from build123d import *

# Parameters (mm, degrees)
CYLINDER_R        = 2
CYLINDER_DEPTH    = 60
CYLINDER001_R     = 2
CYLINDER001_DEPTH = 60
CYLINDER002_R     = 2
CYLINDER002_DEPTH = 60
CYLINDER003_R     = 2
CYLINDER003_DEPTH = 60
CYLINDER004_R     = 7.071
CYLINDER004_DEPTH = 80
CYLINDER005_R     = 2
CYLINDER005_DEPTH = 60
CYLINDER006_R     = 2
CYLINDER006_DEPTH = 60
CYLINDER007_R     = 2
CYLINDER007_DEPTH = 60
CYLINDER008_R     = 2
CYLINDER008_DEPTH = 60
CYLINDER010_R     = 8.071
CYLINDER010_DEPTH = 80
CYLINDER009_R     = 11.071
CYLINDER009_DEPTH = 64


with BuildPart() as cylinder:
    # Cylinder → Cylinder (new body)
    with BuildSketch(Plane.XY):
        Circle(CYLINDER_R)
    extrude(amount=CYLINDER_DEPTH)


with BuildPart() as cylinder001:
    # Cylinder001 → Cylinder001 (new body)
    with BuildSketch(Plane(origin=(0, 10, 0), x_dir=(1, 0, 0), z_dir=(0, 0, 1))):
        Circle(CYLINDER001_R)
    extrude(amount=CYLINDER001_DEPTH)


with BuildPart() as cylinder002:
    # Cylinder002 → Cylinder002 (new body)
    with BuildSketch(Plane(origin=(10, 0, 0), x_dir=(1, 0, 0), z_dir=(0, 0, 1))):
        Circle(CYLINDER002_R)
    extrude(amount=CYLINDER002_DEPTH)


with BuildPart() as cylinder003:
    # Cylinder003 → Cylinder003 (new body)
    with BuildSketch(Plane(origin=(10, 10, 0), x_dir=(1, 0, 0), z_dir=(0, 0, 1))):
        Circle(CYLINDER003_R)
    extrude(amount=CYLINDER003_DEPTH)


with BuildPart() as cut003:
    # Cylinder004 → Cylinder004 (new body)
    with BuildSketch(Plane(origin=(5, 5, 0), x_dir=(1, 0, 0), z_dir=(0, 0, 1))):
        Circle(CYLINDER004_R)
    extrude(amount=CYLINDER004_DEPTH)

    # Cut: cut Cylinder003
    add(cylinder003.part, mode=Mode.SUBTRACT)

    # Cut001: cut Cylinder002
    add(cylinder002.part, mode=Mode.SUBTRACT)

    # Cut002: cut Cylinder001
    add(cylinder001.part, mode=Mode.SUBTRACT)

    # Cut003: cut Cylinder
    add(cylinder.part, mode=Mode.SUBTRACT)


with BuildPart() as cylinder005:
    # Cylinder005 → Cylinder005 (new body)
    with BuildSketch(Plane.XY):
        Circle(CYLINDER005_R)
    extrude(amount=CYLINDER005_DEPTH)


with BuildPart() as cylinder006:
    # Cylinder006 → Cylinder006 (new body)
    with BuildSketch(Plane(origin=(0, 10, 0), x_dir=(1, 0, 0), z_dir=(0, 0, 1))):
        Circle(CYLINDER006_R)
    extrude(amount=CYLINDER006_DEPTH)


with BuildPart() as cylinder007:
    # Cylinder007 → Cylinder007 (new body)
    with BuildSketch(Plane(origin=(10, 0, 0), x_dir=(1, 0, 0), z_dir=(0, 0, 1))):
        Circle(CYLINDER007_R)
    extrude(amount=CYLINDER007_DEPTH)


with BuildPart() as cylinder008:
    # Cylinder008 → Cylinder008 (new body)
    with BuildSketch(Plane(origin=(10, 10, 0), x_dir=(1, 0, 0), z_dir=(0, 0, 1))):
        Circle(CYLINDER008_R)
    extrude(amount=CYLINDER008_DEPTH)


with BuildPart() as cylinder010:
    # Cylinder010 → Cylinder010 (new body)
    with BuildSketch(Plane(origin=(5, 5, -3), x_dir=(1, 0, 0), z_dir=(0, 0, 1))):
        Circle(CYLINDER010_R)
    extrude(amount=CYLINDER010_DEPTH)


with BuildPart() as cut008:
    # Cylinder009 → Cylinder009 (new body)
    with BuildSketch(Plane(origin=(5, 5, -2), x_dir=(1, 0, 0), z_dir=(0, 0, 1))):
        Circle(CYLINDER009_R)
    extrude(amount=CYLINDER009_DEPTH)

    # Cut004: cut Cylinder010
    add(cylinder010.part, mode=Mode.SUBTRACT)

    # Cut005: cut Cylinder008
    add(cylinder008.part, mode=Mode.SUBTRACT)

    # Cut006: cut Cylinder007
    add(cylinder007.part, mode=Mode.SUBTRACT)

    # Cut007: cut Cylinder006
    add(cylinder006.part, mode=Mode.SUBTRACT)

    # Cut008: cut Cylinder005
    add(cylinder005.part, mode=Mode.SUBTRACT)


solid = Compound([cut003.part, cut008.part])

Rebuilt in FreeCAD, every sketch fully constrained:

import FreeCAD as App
import Part
import Sketcher

V = App.Vector

doc = App.newDocument("Part")
body = doc.addObject("PartDesign::Body", "Body")

# Sketch on XY plane
sketch1 = body.newObject("Sketcher::SketchObject", "Sketch")
sketch1.AttachmentSupport = (doc.getObject("XY_Plane"), [""])
sketch1.MapMode = "FlatFace"
sketch1.addGeometry(Part.Circle(V(0, 0, 0), V(0, 0, 1), 2), False)
sketch1.addConstraint([
    Sketcher.Constraint("Coincident", 0, 3, -1, 1),
    Sketcher.Constraint("Diameter", 0, 4.0),
])
pad1 = body.newObject("PartDesign::Pad", "Pad")
pad1.Profile = sketch1
pad1.Length = 60
body2 = doc.addObject("PartDesign::Body", "Body001")

# Sketch on XY plane
sketch2 = body2.newObject("Sketcher::SketchObject", "Sketch001")
sketch2.AttachmentSupport = (doc.getObject("XY_Plane001"), [""])
sketch2.MapMode = "FlatFace"
sketch2.addGeometry(Part.Circle(V(0, 10, 0), V(0, 0, 1), 2), False)
sketch2.addConstraint([
    Sketcher.Constraint("PointOnObject", 0, 3, -2),
    Sketcher.Constraint("Diameter", 0, 4.0),
    Sketcher.Constraint("DistanceY", -1, 1, 0, 3, 10.0),
])
pad2 = body2.newObject("PartDesign::Pad", "Pad001")
pad2.Profile = sketch2
pad2.Length = 60
body3 = doc.addObject("PartDesign::Body", "Body002")

# Sketch on XY plane
sketch3 = body3.newObject("Sketcher::SketchObject", "Sketch002")
sketch3.AttachmentSupport = (doc.getObject("XY_Plane002"), [""])
sketch3.MapMode = "FlatFace"
sketch3.addGeometry(Part.Circle(V(10, 0, 0), V(0, 0, 1), 2), False)
sketch3.addConstraint([
    Sketcher.Constraint("PointOnObject", 0, 3, -1),
    Sketcher.Constraint("Diameter", 0, 4.0),
    Sketcher.Constraint("DistanceX", -1, 1, 0, 3, 10.0),
])
pad3 = body3.newObject("PartDesign::Pad", "Pad002")
pad3.Profile = sketch3
pad3.Length = 60
body4 = doc.addObject("PartDesign::Body", "Body003")

# Sketch on XY plane
sketch4 = body4.newObject("Sketcher::SketchObject", "Sketch003")
sketch4.AttachmentSupport = (doc.getObject("XY_Plane003"), [""])
sketch4.MapMode = "FlatFace"
sketch4.addGeometry(Part.Circle(V(10, 10, 0), V(0, 0, 1), 2), False)
sketch4.addConstraint([
    Sketcher.Constraint("Diameter", 0, 4.0),
    Sketcher.Constraint("DistanceX", -1, 1, 0, 3, 10.0),
    Sketcher.Constraint("DistanceY", -1, 1, 0, 3, 10.0),
])
pad4 = body4.newObject("PartDesign::Pad", "Pad003")
pad4.Profile = sketch4
pad4.Length = 60
body5 = doc.addObject("PartDesign::Body", "Body004")

# Sketch on XY plane
sketch5 = body5.newObject("Sketcher::SketchObject", "Sketch004")
sketch5.AttachmentSupport = (doc.getObject("XY_Plane004"), [""])
sketch5.MapMode = "FlatFace"
sketch5.addGeometry(Part.Circle(V(5, 5, 0), V(0, 0, 1), 7.071), False)
sketch5.addConstraint([
    Sketcher.Constraint("Diameter", 0, 14.142),
    Sketcher.Constraint("DistanceX", -1, 1, 0, 3, 5.0),
    Sketcher.Constraint("DistanceY", -1, 1, 0, 3, 5.0),
])
pad5 = body5.newObject("PartDesign::Pad", "Pad004")
pad5.Profile = sketch5
pad5.Length = 80
doc.recompute()

boolean = body5.newObject("PartDesign::Boolean", "Boolean")
boolean.Type = "Cut"
boolean.addObjects([body4])
doc.recompute()

boolean2 = body5.newObject("PartDesign::Boolean", "Boolean001")
boolean2.Type = "Cut"
boolean2.addObjects([body3])
doc.recompute()

boolean3 = body5.newObject("PartDesign::Boolean", "Boolean002")
boolean3.Type = "Cut"
boolean3.addObjects([body2])
doc.recompute()

boolean4 = body5.newObject("PartDesign::Boolean", "Boolean003")
boolean4.Type = "Cut"
boolean4.addObjects([body])
body6 = doc.addObject("PartDesign::Body", "Body005")

# Sketch on XY plane
sketch6 = body6.newObject("Sketcher::SketchObject", "Sketch005")
sketch6.AttachmentSupport = (doc.getObject("XY_Plane005"), [""])
sketch6.MapMode = "FlatFace"
sketch6.addGeometry(Part.Circle(V(0, 0, 0), V(0, 0, 1), 2), False)
sketch6.addConstraint([
    Sketcher.Constraint("Coincident", 0, 3, -1, 1),
    Sketcher.Constraint("Diameter", 0, 4.0),
])
pad6 = body6.newObject("PartDesign::Pad", "Pad005")
pad6.Profile = sketch6
pad6.Length = 60
body7 = doc.addObject("PartDesign::Body", "Body006")

# Sketch on XY plane
sketch7 = body7.newObject("Sketcher::SketchObject", "Sketch006")
sketch7.AttachmentSupport = (doc.getObject("XY_Plane006"), [""])
sketch7.MapMode = "FlatFace"
sketch7.addGeometry(Part.Circle(V(0, 10, 0), V(0, 0, 1), 2), False)
sketch7.addConstraint([
    Sketcher.Constraint("PointOnObject", 0, 3, -2),
    Sketcher.Constraint("Diameter", 0, 4.0),
    Sketcher.Constraint("DistanceY", -1, 1, 0, 3, 10.0),
])
pad7 = body7.newObject("PartDesign::Pad", "Pad006")
pad7.Profile = sketch7
pad7.Length = 60
body8 = doc.addObject("PartDesign::Body", "Body007")

# Sketch on XY plane
sketch8 = body8.newObject("Sketcher::SketchObject", "Sketch007")
sketch8.AttachmentSupport = (doc.getObject("XY_Plane007"), [""])
sketch8.MapMode = "FlatFace"
sketch8.addGeometry(Part.Circle(V(10, 0, 0), V(0, 0, 1), 2), False)
sketch8.addConstraint([
    Sketcher.Constraint("PointOnObject", 0, 3, -1),
    Sketcher.Constraint("Diameter", 0, 4.0),
    Sketcher.Constraint("DistanceX", -1, 1, 0, 3, 10.0),
])
pad8 = body8.newObject("PartDesign::Pad", "Pad007")
pad8.Profile = sketch8
pad8.Length = 60
body9 = doc.addObject("PartDesign::Body", "Body008")

# Sketch on XY plane
sketch9 = body9.newObject("Sketcher::SketchObject", "Sketch008")
sketch9.AttachmentSupport = (doc.getObject("XY_Plane008"), [""])
sketch9.MapMode = "FlatFace"
sketch9.addGeometry(Part.Circle(V(10, 10, 0), V(0, 0, 1), 2), False)
sketch9.addConstraint([
    Sketcher.Constraint("Diameter", 0, 4.0),
    Sketcher.Constraint("DistanceX", -1, 1, 0, 3, 10.0),
    Sketcher.Constraint("DistanceY", -1, 1, 0, 3, 10.0),
])
pad9 = body9.newObject("PartDesign::Pad", "Pad008")
pad9.Profile = sketch9
pad9.Length = 60
body10 = doc.addObject("PartDesign::Body", "Body009")

# Sketch on XY plane
sketch10 = body10.newObject("Sketcher::SketchObject", "Sketch009")
sketch10.AttachmentSupport = (doc.getObject("XY_Plane009"), [""])
sketch10.MapMode = "FlatFace"
sketch10.AttachmentOffset = App.Placement(V(0, 0, -3), App.Rotation())
sketch10.addGeometry(Part.Circle(V(5, 5, 0), V(0, 0, 1), 8.071), False)
sketch10.addConstraint([
    Sketcher.Constraint("Diameter", 0, 16.142),
    Sketcher.Constraint("DistanceX", -1, 1, 0, 3, 5.0),
    Sketcher.Constraint("DistanceY", -1, 1, 0, 3, 5.0),
])
pad10 = body10.newObject("PartDesign::Pad", "Pad009")
pad10.Profile = sketch10
pad10.Length = 80
body11 = doc.addObject("PartDesign::Body", "Body010")

# Sketch on XY plane
sketch11 = body11.newObject("Sketcher::SketchObject", "Sketch010")
sketch11.AttachmentSupport = (doc.getObject("XY_Plane010"), [""])
sketch11.MapMode = "FlatFace"
sketch11.AttachmentOffset = App.Placement(V(0, 0, -2), App.Rotation())
sketch11.addGeometry(Part.Circle(V(5, 5, 0), V(0, 0, 1), 11.071), False)
sketch11.addConstraint([
    Sketcher.Constraint("Diameter", 0, 22.142),
    Sketcher.Constraint("DistanceX", -1, 1, 0, 3, 5.0),
    Sketcher.Constraint("DistanceY", -1, 1, 0, 3, 5.0),
])
pad11 = body11.newObject("PartDesign::Pad", "Pad010")
pad11.Profile = sketch11
pad11.Length = 64
doc.recompute()

boolean5 = body11.newObject("PartDesign::Boolean", "Boolean004")
boolean5.Type = "Cut"
boolean5.addObjects([body10])
doc.recompute()

boolean6 = body11.newObject("PartDesign::Boolean", "Boolean005")
boolean6.Type = "Cut"
boolean6.addObjects([body9])
doc.recompute()

boolean7 = body11.newObject("PartDesign::Boolean", "Boolean006")
boolean7.Type = "Cut"
boolean7.addObjects([body8])
doc.recompute()

boolean8 = body11.newObject("PartDesign::Boolean", "Boolean007")
boolean8.Type = "Cut"
boolean8.addObjects([body7])
doc.recompute()

boolean9 = body11.newObject("PartDesign::Boolean", "Boolean008")
boolean9.Type = "Cut"
boolean9.addObjects([body6])

doc.recompute()
